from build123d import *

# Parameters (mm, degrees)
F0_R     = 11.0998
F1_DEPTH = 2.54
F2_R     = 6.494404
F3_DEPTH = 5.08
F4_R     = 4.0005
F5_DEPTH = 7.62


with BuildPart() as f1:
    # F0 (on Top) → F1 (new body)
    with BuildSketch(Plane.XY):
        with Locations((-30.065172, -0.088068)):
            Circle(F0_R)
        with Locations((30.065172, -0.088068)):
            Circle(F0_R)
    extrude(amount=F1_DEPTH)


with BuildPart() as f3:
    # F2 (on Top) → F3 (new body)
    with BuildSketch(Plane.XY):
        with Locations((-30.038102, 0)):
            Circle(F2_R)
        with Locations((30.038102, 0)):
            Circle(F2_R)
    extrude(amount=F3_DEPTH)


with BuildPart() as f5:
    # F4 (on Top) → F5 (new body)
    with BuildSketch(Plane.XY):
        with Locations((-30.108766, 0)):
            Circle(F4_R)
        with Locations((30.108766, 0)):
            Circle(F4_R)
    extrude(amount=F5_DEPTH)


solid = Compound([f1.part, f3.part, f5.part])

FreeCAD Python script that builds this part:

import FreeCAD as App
import Part
import Sketcher
from FreeCAD import Vector
Q = App.Units.Quantity

doc = App.newDocument("Part")
params = doc.addObject("Spreadsheet::Sheet", "Params")
for row, (alias, value) in enumerate([
    ("sketch1_diameter", "0.874 in"),
    ("pad1_length", "0.1 in"),
    ("pad2_length", "0.2 in"),
    ("sketch3_diameter", "0.315 in"),
    ("pad3_length", "0.3 in"),
], start=1):
    params.set(f"A{row}", alias)
    params.set(f"B{row}", "=" + value)
    params.setAlias(f"B{row}", alias)

body = doc.addObject("PartDesign::Body", "Body")
body.AllowCompound = True

# Sketch on XY plane
sketch1 = body.newObject("Sketcher::SketchObject", "Sketch")
sketch1.AttachmentSupport = (doc.getObject("XY_Plane"), [""])
sketch1.MapMode = "FlatFace"
sketch1.addGeometry([
    Part.Circle(Vector(-30.065172, -0.088068, 0), Vector(0, 0, 1), 11.0998),
    Part.Circle(Vector(30.065172, -0.088068, 0), Vector(0, 0, 1), 11.0998),
], False)
sketch1.addConstraint([
    Sketcher.Constraint("Equal", 0, 1),
    Sketcher.Constraint("Symmetric", 0, 3, 1, 3, -2),
    Sketcher.Constraint("Diameter", 0, Q("0.874 in")),
    Sketcher.Constraint("DistanceX", 0, 3, -1, 1, 30.065172),
    Sketcher.Constraint("DistanceY", 0, 3, -1, 1, 0.088068),
])
sketch1.setExpression("Constraints[2]", "Params.sketch1_diameter")
pad1 = body.newObject("PartDesign::Pad", "Pad")
pad1.Profile = sketch1
pad1.setExpression("Length", "Params.pad1_length")
body2 = doc.addObject("PartDesign::Body", "Body001")
body2.AllowCompound = True

# Sketch on XY plane
sketch2 = body2.newObject("Sketcher::SketchObject", "Sketch001")
sketch2.AttachmentSupport = (doc.getObject("XY_Plane001"), [""])
sketch2.MapMode = "FlatFace"
sketch2.addGeometry([
    Part.Circle(Vector(-30.038102, 0, 0), Vector(0, 0, 1), 6.494404),
    Part.Circle(Vector(30.038102, 0, 0), Vector(0, 0, 1), 6.494404),
], False)
sketch2.addConstraint([
    Sketcher.Constraint("Equal", 0, 1),
    Sketcher.Constraint("Symmetric", 0, 3, 1, 3, -1, 1),
    Sketcher.Constraint("PointOnObject", 0, 3, -1),
    Sketcher.Constraint("Diameter", 0, 12.988808),
    Sketcher.Constraint("DistanceX", 0, 3, -1, 1, 30.038102),
])
pad2 = body2.newObject("PartDesign::Pad", "Pad001")
pad2.Profile = sketch2
pad2.setExpression("Length", "Params.pad2_length")
body3 = doc.addObject("PartDesign::Body", "Body002")
body3.AllowCompound = True

# Sketch on XY plane
sketch3 = body3.newObject("Sketcher::SketchObject", "Sketch002")
sketch3.AttachmentSupport = (doc.getObject("XY_Plane002"), [""])
sketch3.MapMode = "FlatFace"
sketch3.addGeometry([
    Part.Circle(Vector(-30.108766, 0, 0), Vector(0, 0, 1), 4.0005),
    Part.Circle(Vector(30.108766, 0, 0), Vector(0, 0, 1), 4.0005),
], False)
sketch3.addConstraint([
    Sketcher.Constraint("Equal", 0, 1),
    Sketcher.Constraint("Symmetric", 0, 3, 1, 3, -1, 1),
    Sketcher.Constraint("PointOnObject", 0, 3, -1),
    Sketcher.Constraint("Diameter", 0, Q("0.315 in")),
    Sketcher.Constraint("DistanceX", 0, 3, -1, 1, 30.108766),
])
sketch3.setExpression("Constraints[3]", "Params.sketch3_diameter")
pad3 = body3.newObject("PartDesign::Pad", "Pad002")
pad3.Profile = sketch3
pad3.setExpression("Length", "Params.pad3_length")

doc.recompute()
